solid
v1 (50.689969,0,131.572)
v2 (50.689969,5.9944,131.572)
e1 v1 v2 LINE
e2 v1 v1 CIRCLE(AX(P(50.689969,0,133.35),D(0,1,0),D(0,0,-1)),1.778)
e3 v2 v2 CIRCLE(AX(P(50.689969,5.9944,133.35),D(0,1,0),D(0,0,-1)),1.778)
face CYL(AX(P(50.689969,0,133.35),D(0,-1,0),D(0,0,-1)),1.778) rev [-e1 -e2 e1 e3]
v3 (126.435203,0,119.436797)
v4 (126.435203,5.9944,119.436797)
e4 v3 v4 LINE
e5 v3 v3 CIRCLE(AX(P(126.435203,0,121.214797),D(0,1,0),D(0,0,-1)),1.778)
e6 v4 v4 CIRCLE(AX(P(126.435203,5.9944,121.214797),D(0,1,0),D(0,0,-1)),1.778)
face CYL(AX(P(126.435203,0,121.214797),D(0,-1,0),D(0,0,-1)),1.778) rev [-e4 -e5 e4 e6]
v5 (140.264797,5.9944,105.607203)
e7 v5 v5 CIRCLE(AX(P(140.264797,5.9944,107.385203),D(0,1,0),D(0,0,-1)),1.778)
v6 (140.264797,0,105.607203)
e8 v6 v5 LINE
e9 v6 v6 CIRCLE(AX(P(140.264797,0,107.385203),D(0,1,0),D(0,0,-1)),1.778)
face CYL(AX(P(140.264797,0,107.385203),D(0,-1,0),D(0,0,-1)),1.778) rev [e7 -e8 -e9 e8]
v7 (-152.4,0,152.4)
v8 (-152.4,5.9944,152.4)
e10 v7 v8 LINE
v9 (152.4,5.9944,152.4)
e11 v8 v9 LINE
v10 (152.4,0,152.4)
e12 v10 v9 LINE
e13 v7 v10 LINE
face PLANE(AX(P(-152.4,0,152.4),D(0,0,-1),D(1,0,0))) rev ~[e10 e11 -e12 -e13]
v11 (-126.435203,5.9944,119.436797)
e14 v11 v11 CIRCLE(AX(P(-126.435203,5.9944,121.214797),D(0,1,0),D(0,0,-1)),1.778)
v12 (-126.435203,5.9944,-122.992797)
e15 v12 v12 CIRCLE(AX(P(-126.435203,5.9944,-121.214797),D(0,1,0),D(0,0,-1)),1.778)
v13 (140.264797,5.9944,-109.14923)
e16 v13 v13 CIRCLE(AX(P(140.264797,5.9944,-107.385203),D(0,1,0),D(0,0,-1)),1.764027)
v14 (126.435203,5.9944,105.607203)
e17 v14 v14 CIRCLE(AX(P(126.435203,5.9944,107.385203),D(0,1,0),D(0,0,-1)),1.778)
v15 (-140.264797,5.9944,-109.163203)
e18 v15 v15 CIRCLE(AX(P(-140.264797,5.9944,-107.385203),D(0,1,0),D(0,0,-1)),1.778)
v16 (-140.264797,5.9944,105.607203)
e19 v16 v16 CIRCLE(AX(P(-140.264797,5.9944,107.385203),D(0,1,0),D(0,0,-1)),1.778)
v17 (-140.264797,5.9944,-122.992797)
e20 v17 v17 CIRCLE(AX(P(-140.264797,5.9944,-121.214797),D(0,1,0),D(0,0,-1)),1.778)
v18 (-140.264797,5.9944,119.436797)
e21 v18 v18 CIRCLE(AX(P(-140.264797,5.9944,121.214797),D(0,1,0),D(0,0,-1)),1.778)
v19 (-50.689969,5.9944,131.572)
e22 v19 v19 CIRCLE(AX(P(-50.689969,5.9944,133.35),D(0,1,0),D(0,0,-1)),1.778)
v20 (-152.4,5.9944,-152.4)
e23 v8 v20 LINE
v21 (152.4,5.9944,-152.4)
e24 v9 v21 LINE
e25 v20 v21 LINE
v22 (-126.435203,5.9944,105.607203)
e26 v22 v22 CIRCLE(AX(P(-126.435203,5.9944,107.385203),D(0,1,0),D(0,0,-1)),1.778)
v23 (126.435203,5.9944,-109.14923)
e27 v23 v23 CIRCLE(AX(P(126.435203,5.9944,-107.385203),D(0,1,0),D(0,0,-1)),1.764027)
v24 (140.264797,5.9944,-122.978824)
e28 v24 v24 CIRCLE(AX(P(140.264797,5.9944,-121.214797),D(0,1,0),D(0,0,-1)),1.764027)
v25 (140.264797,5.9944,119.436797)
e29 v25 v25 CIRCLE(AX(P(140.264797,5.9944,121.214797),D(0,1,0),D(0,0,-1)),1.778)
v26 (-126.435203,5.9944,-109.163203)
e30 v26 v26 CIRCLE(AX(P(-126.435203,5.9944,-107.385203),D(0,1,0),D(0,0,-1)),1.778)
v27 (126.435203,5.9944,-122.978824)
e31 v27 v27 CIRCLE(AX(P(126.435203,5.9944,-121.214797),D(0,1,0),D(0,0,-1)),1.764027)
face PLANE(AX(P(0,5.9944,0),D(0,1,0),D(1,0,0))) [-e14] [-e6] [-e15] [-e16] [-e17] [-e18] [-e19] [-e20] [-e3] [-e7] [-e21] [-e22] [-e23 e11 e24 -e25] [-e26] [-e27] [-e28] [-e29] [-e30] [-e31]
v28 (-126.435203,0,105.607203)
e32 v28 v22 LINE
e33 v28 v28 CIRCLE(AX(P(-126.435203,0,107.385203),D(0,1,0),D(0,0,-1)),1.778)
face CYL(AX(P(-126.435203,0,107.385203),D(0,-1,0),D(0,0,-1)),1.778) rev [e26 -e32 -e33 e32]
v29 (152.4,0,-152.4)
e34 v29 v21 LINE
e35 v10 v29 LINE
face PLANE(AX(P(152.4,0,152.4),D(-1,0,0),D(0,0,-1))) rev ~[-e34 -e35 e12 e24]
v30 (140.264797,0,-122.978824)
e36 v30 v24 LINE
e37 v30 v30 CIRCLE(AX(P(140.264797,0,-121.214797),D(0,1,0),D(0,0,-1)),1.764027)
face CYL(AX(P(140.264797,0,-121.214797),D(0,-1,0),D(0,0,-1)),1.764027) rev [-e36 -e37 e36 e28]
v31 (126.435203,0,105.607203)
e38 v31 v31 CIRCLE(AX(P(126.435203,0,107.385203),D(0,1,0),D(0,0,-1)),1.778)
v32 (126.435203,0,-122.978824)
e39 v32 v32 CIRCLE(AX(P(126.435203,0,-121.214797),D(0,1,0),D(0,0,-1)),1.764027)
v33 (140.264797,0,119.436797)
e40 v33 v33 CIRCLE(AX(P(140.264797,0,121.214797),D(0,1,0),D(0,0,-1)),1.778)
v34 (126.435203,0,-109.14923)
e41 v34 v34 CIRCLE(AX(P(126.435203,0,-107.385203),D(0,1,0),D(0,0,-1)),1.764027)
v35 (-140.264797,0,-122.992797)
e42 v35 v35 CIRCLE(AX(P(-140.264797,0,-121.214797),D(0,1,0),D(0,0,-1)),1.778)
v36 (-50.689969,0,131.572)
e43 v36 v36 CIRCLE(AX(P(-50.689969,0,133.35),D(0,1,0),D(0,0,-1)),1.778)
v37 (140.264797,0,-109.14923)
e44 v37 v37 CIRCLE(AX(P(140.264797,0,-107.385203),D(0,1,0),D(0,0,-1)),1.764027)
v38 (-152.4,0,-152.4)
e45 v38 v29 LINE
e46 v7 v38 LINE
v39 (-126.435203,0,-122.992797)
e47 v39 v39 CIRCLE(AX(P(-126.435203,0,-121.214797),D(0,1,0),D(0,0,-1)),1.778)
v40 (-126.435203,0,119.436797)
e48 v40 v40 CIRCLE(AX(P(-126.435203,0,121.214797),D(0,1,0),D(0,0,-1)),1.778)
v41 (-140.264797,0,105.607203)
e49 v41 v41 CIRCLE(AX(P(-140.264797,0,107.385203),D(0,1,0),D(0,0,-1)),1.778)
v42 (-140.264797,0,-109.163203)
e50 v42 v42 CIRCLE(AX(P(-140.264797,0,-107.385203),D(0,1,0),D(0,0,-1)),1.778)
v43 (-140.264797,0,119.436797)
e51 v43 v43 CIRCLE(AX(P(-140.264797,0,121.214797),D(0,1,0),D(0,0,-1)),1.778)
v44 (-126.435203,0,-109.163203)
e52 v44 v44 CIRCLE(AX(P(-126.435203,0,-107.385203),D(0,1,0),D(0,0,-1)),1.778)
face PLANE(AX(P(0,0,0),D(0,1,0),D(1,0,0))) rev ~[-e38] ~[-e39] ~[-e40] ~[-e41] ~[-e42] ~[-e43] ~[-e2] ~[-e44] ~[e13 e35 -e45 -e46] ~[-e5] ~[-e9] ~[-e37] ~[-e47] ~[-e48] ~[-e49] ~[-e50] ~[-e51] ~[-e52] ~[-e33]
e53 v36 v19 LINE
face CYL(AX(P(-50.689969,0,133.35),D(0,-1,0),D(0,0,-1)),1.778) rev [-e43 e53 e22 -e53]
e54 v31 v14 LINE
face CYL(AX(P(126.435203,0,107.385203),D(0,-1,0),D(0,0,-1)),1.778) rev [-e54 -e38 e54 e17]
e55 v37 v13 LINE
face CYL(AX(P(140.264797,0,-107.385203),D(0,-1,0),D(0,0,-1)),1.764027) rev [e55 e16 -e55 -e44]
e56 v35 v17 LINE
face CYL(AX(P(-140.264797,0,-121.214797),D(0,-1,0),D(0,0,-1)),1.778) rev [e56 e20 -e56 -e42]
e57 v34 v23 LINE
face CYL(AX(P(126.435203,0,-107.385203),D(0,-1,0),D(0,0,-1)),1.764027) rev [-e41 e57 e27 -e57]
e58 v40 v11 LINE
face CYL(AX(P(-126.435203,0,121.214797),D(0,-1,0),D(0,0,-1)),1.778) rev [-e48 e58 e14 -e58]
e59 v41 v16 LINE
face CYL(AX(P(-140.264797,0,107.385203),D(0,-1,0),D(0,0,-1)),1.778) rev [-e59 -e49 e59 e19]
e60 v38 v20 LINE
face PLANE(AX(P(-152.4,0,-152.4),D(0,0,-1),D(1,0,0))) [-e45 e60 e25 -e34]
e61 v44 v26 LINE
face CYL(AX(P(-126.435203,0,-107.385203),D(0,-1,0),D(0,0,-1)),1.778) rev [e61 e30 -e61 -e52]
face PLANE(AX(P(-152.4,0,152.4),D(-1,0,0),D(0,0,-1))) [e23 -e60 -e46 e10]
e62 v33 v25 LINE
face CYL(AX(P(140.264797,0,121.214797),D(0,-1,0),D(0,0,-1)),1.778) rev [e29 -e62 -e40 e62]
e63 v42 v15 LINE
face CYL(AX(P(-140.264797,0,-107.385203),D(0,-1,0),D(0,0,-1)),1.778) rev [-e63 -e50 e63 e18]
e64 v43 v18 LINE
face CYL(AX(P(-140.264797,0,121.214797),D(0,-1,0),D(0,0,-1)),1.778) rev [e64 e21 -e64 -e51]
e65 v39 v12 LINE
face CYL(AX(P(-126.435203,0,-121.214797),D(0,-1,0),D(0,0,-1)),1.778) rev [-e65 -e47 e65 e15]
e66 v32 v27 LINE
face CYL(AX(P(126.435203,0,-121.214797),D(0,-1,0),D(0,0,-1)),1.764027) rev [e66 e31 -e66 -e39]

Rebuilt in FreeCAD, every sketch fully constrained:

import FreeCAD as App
import Part
import Sketcher

V = App.Vector
Q = App.Units.Quantity


def add_polygon(sketch, points):
    """Adds a closed chain of lines whose ends are joined by coincident constraints."""
    first, n = sketch.GeometryCount, len(points)
    for a, b in zip(points, points[1:] + points[:1]):
        sketch.addGeometry(Part.LineSegment(App.Vector(*a, 0), App.Vector(*b, 0)), False)
    for i in range(n):
        sketch.addConstraint(Sketcher.Constraint("Coincident", first + i, 2, first + (i + 1) % n, 1))

doc = App.newDocument("Part")
body = doc.addObject("PartDesign::Body", "Body")

# Sketch on XZ plane
sketch1 = body.newObject("Sketcher::SketchObject", "Sketch")
sketch1.AttachmentSupport = (doc.getObject("XZ_Plane"), [""])
sketch1.MapMode = "FlatFace"
add_polygon(sketch1, [(-152.4, -152.4), (-152.4, 152.4), (152.4, 152.4), (152.4, -152.4)])  # lines 0-3
sketch1.addGeometry(Part.Circle(V(-140.3, 121.2, 0), V(0, 0, 1), 1.8), False)  # 4
sketch1.addGeometry(Part.Circle(V(-126.4, 121.2, 0), V(0, 0, 1), 1.8), False)  # 5
sketch1.addGeometry(Part.Circle(V(-140.3, 107.4, 0), V(0, 0, 1), 1.8), False)  # 6
sketch1.addGeometry(Part.Circle(V(-126.4, 107.4, 0), V(0, 0, 1), 1.8), False)  # 7
sketch1.addGeometry(Part.Circle(V(-50.7, 133.3, 0), V(0, 0, 1), 1.8), False)  # 8
sketch1.addGeometry(Part.Circle(V(50.7, 133.3, 0), V(0, 0, 1), 1.8), False)  # 9
sketch1.addGeometry(Part.Circle(V(126.4, 121.2, 0), V(0, 0, 1), 1.8), False)  # 10
sketch1.addGeometry(Part.Circle(V(140.3, 121.2, 0), V(0, 0, 1), 1.8), False)  # 11
sketch1.addGeometry(Part.Circle(V(126.4, 107.4, 0), V(0, 0, 1), 1.8), False)  # 12
sketch1.addGeometry(Part.Circle(V(140.3, 107.4, 0), V(0, 0, 1), 1.8), False)  # 13
sketch1.addGeometry(Part.Circle(V(-140.3, -107.4, 0), V(0, 0, 1), 1.8), False)  # 14
sketch1.addGeometry(Part.Circle(V(-126.4, -107.4, 0), V(0, 0, 1), 1.8), False)  # 15
sketch1.addGeometry(Part.Circle(V(-140.3, -121.2, 0), V(0, 0, 1), 1.8), False)  # 16
sketch1.addGeometry(Part.Circle(V(-126.4, -121.2, 0), V(0, 0, 1), 1.8), False)  # 17
sketch1.addGeometry(Part.Circle(V(126.4, -107.4, 0), V(0, 0, 1), 1.8), False)  # 18
sketch1.addGeometry(Part.Circle(V(140.3, -107.4, 0), V(0, 0, 1), 1.8), False)  # 19
sketch1.addGeometry(Part.Circle(V(126.4, -121.2, 0), V(0, 0, 1), 1.8), False)  # 20
sketch1.addGeometry(Part.Circle(V(140.3, -121.2, 0), V(0, 0, 1), 1.8), False)  # 21
sketch1.addConstraint(Sketcher.Constraint("Vertical", 0))
sketch1.addConstraint(Sketcher.Constraint("Horizontal", 1))
sketch1.addConstraint(Sketcher.Constraint("Vertical", 2))
sketch1.addConstraint(Sketcher.Constraint("Horizontal", 3))
sketch1.addConstraint(Sketcher.Constraint("Equal", 4, 5))
sketch1.addConstraint(Sketcher.Constraint("Equal", 5, 6))
sketch1.addConstraint(Sketcher.Constraint("Equal", 6, 7))
sketch1.addConstraint(Sketcher.Constraint("Equal", 7, 8))
sketch1.addConstraint(Sketcher.Constraint("Equal", 8, 9))
sketch1.addConstraint(Sketcher.Constraint("Equal", 9, 10))
sketch1.addConstraint(Sketcher.Constraint("Equal", 10, 11))
sketch1.addConstraint(Sketcher.Constraint("Equal", 11, 12))
sketch1.addConstraint(Sketcher.Constraint("Equal", 12, 13))
sketch1.addConstraint(Sketcher.Constraint("Equal", 13, 14))
sketch1.addConstraint(Sketcher.Constraint("Equal", 14, 15))
sketch1.addConstraint(Sketcher.Constraint("Equal", 15, 16))
sketch1.addConstraint(Sketcher.Constraint("Equal", 16, 17))
sketch1.addConstraint(Sketcher.Constraint("Equal", 18, 19))
sketch1.addConstraint(Sketcher.Constraint("Equal", 19, 20))
sketch1.addConstraint(Sketcher.Constraint("Equal", 20, 21))
sketch1.addConstraint(Sketcher.Constraint("Symmetric", 13, 3, 14, 3, -1, 1))
sketch1.addConstraint(Sketcher.Constraint("Symmetric", 12, 3, 15, 3, -1, 1))
sketch1.addConstraint(Sketcher.Constraint("Symmetric", 11, 3, 16, 3, -1, 1))
sketch1.addConstraint(Sketcher.Constraint("Symmetric", 10, 3, 17, 3, -1, 1))
sketch1.addConstraint(Sketcher.Constraint("Symmetric", 7, 3, 18, 3, -1, 1))
sketch1.addConstraint(Sketcher.Constraint("Symmetric", 6, 3, 19, 3, -1, 1))
sketch1.addConstraint(Sketcher.Constraint("Symmetric", 5, 3, 20, 3, -1, 1))
sketch1.addConstraint(Sketcher.Constraint("Symmetric", 4, 3, 21, 3, -1, 1))
sketch1.addConstraint(Sketcher.Constraint("Symmetric", 0, 2, 2, 2, -1, 1))
sketch1.addConstraint(Sketcher.Constraint("Symmetric", 8, 3, 9, 3, -2))
sketch1.addConstraint(Sketcher.Constraint("Symmetric", 5, 3, 10, 3, -2))
sketch1.addConstraint(Sketcher.Constraint("Symmetric", 4, 3, 11, 3, -2))
sketch1.addConstraint(Sketcher.Constraint("Symmetric", 7, 3, 12, 3, -2))
sketch1.addConstraint(Sketcher.Constraint("Symmetric", 6, 3, 13, 3, -2))
sketch1.addConstraint(Sketcher.Constraint("Horizontal", 4, 3, 5, 3))
sketch1.addConstraint(Sketcher.Constraint("Horizontal", 6, 3, 7, 3))
sketch1.addConstraint(Sketcher.Constraint("Vertical", 4, 3, 6, 3))
sketch1.addConstraint(Sketcher.Constraint("Vertical", 5, 3, 7, 3))
sketch1.addConstraint(Sketcher.Constraint("Equal", 3, 0))
sketch1.addConstraint(Sketcher.Constraint("Diameter", 4, Q("0.14 in")))
sketch1.addConstraint(Sketcher.Constraint("DistanceX", 1, 1, 1, 2, Q("12 in")))
sketch1.addConstraint(Sketcher.Constraint("DistanceY", 14, 3, 4, 3, Q("9 in")))
sketch1.addConstraint(Sketcher.Constraint("DistanceX", 4, 3, 10, 3, Q("10.5 in")))
sketch1.addConstraint(Sketcher.Constraint("DistanceY", -1, 1, 8, 3, Q("5.25 in")))
sketch1.addConstraint(Sketcher.Constraint("Diameter", 18, Q("3.528054 mm")))
sketch1.addConstraint(Sketcher.Constraint("DistanceX", 8, 3, -1, 1, Q("50.689969 mm")))
sketch1.addConstraint(Sketcher.Constraint("DistanceX", 4, 3, 8, 3, Q("89.574829 mm")))
sketch1.addConstraint(Sketcher.Constraint("DistanceY", -1, 1, 4, 3, Q("121.214797 mm")))
pad1 = body.newObject("PartDesign::Pad", "Pad")
pad1.Profile = sketch1
pad1.Length = Q("0.236 in")
pad1.Reversed = True

doc.recompute()
